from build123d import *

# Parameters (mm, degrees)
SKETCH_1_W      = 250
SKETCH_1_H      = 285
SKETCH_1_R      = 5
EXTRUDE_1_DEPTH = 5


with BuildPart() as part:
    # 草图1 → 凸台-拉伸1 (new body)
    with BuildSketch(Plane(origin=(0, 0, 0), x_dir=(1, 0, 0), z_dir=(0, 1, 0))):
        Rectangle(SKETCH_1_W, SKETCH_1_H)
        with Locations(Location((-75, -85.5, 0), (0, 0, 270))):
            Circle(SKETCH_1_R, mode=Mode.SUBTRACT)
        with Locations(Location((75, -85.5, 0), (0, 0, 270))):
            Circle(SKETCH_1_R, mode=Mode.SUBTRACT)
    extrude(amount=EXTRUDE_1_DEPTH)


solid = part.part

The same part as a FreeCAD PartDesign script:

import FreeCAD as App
import Part
import Sketcher

V = App.Vector


def add_polygon(sketch, points):
    """Adds a closed chain of lines whose ends are joined by coincident constraints."""
    first, n = sketch.GeometryCount, len(points)
    for a, b in zip(points, points[1:] + points[:1]):
        sketch.addGeometry(Part.LineSegment(App.Vector(*a, 0), App.Vector(*b, 0)), False)
    for i in range(n):
        sketch.addConstraint(Sketcher.Constraint("Coincident", first + i, 2, first + (i + 1) % n, 1))

doc = App.newDocument("Part")
body = doc.addObject("PartDesign::Body", "Body")

# Sketch on XZ plane
sketch1 = doc.addObject("Sketcher::SketchObject", "Sketch")
body.addObject(sketch1)
sketch1.AttachmentSupport = (doc.XZ_Plane, [""])
sketch1.MapMode = "FlatFace"
add_polygon(sketch1, [(-125, -142), (-125, 142), (125, 142), (125, -142)])  # lines 0-3
sketch1.addGeometry(Part.Circle(V(-75, 86, 0), V(0, 0, 1), 5), False)  # 4
sketch1.addGeometry(Part.Circle(V(75, 86, 0), V(0, 0, 1), 5), False)  # 5
sketch1.addConstraint(Sketcher.Constraint("Vertical", 0))
sketch1.addConstraint(Sketcher.Constraint("Horizontal", 1))
sketch1.addConstraint(Sketcher.Constraint("Vertical", 2))
sketch1.addConstraint(Sketcher.Constraint("Horizontal", 3))
sketch1.addConstraint(Sketcher.Constraint("Equal", 4, 5))
sketch1.addConstraint(Sketcher.Constraint("Symmetric", 0, 2, 2, 2, -1, 1))
sketch1.addConstraint(Sketcher.Constraint("Symmetric", 4, 3, 5, 3, -2))
sketch1.addConstraint(Sketcher.Constraint("Diameter", 4, 10.0))
sketch1.addConstraint(Sketcher.Constraint("DistanceX", 1, 1, 1, 2, 250.0))
sketch1.addConstraint(Sketcher.Constraint("DistanceY", 0, 1, 0, 2, 285.0))
sketch1.addConstraint(Sketcher.Constraint("DistanceX", 4, 3, -1, 1, 75.0))
sketch1.addConstraint(Sketcher.Constraint("DistanceY", 4, 3, 0, 2, 57.0))
pad1 = doc.addObject("PartDesign::Pad", "Pad")
body.addObject(pad1)
pad1.Profile = sketch1
pad1.Length = 5
pad1.Reversed = True

doc.recompute()
